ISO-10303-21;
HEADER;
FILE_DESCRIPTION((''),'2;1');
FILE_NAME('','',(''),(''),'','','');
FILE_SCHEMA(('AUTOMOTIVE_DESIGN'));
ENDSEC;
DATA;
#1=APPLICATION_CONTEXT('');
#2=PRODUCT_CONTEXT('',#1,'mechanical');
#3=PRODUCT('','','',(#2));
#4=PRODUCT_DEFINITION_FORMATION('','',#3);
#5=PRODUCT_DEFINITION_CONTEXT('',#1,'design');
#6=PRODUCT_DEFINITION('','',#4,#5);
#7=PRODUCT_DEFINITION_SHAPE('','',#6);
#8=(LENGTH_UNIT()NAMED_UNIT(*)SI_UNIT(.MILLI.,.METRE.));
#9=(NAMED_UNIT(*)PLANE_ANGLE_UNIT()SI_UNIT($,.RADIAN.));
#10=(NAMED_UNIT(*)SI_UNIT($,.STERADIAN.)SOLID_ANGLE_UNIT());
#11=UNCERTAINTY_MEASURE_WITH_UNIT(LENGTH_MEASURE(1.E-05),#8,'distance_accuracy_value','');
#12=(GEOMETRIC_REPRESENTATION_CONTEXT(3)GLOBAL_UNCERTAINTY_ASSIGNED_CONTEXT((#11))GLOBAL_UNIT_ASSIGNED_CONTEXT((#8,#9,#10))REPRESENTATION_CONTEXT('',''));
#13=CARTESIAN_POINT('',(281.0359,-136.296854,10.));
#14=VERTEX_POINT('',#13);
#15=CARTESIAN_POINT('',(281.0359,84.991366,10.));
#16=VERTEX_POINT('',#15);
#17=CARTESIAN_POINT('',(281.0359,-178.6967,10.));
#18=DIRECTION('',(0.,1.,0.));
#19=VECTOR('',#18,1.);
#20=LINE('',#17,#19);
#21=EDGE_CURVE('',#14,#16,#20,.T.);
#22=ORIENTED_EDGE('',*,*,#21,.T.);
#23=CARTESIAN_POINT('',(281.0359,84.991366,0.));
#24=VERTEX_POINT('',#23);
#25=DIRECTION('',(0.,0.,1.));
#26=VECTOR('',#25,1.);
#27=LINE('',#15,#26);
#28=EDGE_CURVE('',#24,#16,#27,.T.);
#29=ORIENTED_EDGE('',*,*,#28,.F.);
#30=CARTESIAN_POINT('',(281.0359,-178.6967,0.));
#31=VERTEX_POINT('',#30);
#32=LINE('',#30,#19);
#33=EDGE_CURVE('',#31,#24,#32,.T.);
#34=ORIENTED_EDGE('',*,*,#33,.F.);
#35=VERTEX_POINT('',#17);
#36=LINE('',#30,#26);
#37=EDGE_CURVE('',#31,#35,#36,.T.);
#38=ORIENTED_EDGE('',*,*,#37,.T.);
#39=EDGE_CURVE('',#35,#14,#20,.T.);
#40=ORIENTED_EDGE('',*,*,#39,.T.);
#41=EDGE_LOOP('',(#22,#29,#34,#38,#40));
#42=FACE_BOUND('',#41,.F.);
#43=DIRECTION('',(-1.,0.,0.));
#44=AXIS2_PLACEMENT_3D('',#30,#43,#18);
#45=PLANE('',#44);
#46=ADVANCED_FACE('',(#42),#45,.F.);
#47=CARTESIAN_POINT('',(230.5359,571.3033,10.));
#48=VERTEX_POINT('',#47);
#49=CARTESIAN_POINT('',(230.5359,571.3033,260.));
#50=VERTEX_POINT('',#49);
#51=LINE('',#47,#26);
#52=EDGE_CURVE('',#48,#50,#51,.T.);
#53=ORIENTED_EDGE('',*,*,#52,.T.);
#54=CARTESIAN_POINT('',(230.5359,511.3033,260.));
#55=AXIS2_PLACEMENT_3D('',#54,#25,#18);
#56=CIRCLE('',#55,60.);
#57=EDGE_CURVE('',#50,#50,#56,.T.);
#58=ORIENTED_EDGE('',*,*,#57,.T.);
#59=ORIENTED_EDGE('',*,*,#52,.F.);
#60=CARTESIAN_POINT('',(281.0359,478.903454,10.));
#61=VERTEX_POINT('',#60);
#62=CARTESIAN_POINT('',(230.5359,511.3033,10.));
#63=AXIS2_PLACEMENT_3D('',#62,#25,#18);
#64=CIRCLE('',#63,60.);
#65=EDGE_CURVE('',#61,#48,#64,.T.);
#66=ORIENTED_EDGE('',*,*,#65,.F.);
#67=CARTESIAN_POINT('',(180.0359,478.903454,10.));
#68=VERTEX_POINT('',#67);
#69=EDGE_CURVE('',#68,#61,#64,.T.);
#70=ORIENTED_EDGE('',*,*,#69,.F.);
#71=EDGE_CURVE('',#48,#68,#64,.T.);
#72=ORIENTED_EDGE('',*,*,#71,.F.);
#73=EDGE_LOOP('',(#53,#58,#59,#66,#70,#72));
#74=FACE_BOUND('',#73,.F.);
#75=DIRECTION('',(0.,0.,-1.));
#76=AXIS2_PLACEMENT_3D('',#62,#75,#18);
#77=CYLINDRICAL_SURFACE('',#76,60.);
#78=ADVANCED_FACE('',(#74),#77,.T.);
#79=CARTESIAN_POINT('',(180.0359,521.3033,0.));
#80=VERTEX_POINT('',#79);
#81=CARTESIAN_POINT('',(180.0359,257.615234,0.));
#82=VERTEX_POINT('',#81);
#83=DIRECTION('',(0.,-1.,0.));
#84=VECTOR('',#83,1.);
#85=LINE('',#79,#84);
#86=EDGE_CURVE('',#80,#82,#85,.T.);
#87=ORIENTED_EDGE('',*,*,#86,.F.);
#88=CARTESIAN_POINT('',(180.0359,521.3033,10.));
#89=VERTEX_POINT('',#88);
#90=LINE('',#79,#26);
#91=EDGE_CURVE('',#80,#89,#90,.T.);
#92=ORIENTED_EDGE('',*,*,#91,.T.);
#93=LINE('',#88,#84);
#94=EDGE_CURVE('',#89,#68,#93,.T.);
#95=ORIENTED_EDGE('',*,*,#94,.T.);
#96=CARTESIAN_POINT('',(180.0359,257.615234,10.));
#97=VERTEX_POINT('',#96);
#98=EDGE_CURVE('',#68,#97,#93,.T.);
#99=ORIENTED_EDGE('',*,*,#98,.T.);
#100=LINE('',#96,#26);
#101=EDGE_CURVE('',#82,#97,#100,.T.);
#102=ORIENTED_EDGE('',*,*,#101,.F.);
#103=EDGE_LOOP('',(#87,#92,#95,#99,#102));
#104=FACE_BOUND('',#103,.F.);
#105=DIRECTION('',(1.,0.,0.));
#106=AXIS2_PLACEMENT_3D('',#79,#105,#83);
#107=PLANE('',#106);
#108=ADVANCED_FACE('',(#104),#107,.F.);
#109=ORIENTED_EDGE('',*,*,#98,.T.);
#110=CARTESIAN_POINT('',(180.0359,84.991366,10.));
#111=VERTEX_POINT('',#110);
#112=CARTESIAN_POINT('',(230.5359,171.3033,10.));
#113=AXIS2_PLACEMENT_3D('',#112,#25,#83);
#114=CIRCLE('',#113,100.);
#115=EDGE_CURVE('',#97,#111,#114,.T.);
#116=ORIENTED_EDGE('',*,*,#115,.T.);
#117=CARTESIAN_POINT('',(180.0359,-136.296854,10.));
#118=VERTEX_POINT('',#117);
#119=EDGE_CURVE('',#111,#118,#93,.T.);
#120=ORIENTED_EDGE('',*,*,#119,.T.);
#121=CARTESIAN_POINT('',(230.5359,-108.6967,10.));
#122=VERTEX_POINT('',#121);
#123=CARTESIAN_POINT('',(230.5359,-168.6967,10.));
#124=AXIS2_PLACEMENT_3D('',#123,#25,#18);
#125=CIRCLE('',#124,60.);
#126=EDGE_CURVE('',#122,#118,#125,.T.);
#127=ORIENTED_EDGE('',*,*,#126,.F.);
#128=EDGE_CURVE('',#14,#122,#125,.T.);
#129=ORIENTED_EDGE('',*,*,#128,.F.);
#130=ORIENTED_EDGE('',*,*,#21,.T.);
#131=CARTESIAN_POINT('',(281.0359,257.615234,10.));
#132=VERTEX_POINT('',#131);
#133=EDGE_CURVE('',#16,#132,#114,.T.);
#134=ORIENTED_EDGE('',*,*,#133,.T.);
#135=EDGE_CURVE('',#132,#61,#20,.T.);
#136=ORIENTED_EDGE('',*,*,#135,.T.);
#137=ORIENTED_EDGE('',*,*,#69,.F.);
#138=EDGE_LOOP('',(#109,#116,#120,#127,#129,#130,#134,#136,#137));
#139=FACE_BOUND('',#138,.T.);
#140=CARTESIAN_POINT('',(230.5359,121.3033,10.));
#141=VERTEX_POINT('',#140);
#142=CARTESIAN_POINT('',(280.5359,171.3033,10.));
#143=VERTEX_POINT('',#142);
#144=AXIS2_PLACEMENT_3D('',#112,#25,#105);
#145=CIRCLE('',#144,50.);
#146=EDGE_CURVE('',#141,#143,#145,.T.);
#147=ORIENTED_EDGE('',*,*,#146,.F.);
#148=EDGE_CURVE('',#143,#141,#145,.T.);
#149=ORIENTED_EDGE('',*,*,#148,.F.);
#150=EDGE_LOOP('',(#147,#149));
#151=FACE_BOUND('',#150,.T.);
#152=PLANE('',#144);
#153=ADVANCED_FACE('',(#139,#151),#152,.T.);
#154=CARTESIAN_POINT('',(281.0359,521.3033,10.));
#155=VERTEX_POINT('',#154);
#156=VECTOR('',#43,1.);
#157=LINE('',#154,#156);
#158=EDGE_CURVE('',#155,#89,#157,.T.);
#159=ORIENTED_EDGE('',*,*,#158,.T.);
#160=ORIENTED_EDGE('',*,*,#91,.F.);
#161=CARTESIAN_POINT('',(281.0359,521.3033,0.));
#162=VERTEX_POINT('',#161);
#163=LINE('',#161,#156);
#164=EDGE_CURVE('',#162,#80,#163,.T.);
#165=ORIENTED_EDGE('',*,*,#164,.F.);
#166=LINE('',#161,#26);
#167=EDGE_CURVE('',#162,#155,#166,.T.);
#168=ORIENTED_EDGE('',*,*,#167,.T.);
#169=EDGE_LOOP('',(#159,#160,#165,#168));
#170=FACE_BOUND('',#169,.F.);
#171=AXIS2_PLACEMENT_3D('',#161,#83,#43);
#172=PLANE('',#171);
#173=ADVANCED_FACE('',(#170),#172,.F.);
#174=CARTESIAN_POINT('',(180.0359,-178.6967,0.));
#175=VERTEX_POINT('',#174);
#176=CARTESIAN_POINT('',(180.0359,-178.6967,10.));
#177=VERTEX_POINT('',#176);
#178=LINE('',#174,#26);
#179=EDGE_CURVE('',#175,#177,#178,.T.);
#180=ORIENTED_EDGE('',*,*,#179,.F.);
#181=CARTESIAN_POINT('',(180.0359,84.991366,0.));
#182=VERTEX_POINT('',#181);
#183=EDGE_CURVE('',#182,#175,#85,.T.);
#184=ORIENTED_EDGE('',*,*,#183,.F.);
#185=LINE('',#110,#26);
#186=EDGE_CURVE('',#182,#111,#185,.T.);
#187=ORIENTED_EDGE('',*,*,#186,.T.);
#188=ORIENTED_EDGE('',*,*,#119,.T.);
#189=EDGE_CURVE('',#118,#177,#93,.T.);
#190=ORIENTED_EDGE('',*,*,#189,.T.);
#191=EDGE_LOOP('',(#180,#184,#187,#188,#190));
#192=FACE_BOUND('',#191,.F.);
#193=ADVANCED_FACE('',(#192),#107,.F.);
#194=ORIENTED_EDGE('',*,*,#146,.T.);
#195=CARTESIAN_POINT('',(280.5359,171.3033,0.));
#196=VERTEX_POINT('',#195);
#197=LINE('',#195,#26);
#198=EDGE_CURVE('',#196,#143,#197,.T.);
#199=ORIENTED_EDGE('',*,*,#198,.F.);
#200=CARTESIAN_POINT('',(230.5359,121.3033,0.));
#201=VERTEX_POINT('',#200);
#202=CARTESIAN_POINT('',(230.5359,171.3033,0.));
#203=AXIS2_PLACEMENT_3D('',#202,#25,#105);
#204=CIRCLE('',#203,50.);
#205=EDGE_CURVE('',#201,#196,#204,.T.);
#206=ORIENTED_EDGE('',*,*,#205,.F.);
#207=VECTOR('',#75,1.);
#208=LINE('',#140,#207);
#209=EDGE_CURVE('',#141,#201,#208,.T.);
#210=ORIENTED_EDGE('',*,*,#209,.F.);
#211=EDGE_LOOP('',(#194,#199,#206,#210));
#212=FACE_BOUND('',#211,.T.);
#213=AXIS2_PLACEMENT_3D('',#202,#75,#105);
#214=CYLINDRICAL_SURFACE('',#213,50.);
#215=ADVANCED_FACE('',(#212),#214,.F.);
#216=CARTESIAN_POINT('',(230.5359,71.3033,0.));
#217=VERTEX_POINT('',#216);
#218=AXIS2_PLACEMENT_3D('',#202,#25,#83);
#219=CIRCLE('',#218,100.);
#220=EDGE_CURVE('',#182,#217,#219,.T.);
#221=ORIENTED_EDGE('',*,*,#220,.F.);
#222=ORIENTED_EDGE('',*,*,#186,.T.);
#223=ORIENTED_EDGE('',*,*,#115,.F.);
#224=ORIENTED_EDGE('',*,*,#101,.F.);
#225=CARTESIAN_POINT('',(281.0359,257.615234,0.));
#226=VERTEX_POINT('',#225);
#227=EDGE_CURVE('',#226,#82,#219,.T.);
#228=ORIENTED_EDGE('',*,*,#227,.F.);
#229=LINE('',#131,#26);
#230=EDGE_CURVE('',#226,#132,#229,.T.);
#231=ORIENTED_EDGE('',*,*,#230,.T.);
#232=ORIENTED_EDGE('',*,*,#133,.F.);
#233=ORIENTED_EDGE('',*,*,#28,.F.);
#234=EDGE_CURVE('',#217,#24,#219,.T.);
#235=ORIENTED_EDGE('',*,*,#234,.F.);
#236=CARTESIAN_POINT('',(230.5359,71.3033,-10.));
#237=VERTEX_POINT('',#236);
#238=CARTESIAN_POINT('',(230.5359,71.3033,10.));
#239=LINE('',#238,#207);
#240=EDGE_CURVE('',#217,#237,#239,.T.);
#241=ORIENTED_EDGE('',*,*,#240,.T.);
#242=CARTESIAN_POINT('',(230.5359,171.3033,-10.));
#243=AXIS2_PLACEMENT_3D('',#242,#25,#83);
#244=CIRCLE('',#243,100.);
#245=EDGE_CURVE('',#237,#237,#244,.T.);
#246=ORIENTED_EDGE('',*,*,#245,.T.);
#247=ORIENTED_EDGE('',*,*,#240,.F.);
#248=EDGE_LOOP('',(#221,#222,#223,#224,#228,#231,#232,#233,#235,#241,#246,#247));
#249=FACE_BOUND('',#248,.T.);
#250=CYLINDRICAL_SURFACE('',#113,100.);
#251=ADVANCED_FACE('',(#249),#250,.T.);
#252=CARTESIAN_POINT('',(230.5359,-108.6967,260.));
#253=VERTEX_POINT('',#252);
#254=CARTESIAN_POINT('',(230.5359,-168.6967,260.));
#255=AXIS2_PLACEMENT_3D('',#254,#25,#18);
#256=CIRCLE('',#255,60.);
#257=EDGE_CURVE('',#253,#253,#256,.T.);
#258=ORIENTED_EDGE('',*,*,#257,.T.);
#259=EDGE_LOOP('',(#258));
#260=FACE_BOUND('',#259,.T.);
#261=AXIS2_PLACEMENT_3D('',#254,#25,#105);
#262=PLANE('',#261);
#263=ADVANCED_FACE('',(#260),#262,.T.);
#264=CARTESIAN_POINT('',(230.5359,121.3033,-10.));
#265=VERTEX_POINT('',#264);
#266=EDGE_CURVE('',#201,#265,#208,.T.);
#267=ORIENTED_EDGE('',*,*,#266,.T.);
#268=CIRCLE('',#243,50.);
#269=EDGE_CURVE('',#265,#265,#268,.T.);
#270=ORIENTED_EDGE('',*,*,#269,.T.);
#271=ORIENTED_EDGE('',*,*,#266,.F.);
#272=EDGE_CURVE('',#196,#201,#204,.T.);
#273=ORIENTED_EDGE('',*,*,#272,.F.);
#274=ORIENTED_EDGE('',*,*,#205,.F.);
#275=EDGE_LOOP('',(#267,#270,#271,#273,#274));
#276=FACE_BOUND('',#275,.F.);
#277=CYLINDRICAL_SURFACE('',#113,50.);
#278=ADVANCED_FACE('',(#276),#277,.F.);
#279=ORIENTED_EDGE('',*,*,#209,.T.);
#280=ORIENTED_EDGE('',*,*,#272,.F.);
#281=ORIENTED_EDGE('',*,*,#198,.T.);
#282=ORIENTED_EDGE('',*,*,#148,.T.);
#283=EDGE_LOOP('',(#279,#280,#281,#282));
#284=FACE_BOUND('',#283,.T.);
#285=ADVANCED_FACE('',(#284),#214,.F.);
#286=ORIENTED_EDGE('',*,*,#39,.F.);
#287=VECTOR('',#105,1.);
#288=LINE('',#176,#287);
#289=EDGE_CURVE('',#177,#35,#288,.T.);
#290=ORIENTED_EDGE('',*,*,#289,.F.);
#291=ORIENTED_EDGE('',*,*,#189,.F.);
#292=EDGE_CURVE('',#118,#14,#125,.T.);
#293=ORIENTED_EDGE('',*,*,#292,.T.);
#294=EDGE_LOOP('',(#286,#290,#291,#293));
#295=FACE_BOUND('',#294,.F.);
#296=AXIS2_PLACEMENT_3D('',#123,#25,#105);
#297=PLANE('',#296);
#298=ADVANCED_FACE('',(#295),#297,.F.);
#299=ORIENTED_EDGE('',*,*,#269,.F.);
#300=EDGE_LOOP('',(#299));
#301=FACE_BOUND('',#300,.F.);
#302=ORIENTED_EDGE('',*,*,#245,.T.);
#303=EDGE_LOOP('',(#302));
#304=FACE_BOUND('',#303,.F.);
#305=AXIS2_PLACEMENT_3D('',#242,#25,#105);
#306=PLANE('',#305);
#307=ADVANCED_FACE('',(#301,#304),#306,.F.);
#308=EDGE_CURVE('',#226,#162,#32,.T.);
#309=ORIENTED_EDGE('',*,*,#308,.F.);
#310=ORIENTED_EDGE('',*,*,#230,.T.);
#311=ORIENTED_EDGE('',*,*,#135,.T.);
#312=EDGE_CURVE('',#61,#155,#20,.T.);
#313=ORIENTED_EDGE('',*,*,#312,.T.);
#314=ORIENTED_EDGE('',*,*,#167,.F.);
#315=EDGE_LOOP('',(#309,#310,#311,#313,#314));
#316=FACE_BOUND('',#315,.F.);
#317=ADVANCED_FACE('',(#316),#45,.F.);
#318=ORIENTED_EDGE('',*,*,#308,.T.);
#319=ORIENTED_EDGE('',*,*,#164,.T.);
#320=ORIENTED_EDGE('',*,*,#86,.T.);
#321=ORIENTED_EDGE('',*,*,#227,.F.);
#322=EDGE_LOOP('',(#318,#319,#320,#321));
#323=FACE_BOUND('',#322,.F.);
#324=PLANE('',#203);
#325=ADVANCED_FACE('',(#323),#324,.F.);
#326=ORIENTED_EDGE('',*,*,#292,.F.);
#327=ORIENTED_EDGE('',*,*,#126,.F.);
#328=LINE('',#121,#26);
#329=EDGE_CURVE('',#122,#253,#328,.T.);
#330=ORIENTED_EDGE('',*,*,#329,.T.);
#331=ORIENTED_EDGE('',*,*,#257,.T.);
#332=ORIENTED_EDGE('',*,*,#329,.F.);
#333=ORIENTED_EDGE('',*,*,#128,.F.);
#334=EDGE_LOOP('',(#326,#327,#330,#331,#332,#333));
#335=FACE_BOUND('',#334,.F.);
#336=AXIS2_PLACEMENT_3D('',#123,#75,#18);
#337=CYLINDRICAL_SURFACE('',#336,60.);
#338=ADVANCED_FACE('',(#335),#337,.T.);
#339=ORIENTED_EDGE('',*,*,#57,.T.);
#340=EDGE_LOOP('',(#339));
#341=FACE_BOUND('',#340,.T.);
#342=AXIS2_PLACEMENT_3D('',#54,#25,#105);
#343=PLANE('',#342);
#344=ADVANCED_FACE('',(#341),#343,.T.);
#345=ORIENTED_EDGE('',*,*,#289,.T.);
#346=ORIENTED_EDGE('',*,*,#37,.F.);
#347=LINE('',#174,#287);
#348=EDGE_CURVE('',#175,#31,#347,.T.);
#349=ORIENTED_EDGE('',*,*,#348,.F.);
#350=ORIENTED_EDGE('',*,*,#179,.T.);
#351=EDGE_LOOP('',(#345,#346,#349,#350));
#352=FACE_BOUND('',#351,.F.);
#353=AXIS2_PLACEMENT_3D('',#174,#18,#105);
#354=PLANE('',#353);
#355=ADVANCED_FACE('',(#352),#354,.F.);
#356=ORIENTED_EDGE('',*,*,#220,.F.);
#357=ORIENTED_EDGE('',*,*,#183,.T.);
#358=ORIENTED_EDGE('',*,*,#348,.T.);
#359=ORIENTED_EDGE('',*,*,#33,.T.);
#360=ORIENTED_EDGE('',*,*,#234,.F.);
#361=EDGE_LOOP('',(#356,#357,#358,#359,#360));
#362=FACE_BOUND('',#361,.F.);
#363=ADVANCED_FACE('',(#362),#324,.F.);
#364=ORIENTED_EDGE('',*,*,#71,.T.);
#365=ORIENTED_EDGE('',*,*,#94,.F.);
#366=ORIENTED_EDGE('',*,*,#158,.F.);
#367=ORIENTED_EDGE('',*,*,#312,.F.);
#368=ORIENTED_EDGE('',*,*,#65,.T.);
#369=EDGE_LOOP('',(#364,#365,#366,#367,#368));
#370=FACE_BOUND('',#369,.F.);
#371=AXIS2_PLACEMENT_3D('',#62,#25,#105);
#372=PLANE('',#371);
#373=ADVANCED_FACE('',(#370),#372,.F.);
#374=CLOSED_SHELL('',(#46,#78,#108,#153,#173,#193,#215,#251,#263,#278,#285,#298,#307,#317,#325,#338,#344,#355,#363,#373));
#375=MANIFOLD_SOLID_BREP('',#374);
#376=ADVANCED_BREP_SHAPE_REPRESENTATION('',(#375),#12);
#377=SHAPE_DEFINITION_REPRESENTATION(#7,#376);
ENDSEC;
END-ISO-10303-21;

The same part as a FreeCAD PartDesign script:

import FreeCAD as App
import Part
import Sketcher
Q = App.Units.Quantity

doc = App.newDocument("Part")
body = doc.addObject("PartDesign::Body", "Body")

# Sketch on XY plane
sketch1 = body.newObject("Sketcher::SketchObject", "Sketch")
sketch1.AttachmentSupport = (doc.getObject("XY_Plane"), [""])
sketch1.MapMode = "FlatFace"
sketch1.addGeometry(Part.LineSegment(App.Vector(180, 521, 0), App.Vector(180, -179, 0)), False)
sketch1.addGeometry(Part.LineSegment(App.Vector(180, -179, 0), App.Vector(281, -179, 0)), False)
sketch1.addGeometry(Part.LineSegment(App.Vector(281, -179, 0), App.Vector(281, 521, 0)), False)
sketch1.addGeometry(Part.LineSegment(App.Vector(281, 521, 0), App.Vector(180, 521, 0)), False)
sketch1.addGeometry(Part.Circle(App.Vector(231, 171, 0), App.Vector(0, 0, 1), 50), False)
sketch1.addConstraint(Sketcher.Constraint("Coincident", 0, 2, 1, 1))
sketch1.addConstraint(Sketcher.Constraint("Coincident", 1, 2, 2, 1))
sketch1.addConstraint(Sketcher.Constraint("Coincident", 2, 2, 3, 1))
sketch1.addConstraint(Sketcher.Constraint("Coincident", 3, 2, 0, 1))
sketch1.addConstraint(Sketcher.Constraint("Vertical", 0))
sketch1.addConstraint(Sketcher.Constraint("Horizontal", 1))
sketch1.addConstraint(Sketcher.Constraint("Vertical", 2))
sketch1.addConstraint(Sketcher.Constraint("Horizontal", 3))
sketch1.addConstraint(Sketcher.Constraint("Diameter", 4, Q("100 mm")))
sketch1.addConstraint(Sketcher.Constraint("DistanceX", 1, 1, 1, 2, Q("101 mm")))
sketch1.addConstraint(Sketcher.Constraint("DistanceY", 0, 2, 0, 1, Q("700 mm")))
sketch1.addConstraint(Sketcher.Constraint("DistanceX", -1, 1, 0, 2, Q("180.036 mm")))
sketch1.addConstraint(Sketcher.Constraint("DistanceY", 0, 2, 4, 3, Q("350 mm")))
sketch1.addConstraint(Sketcher.Constraint("DistanceX", 0, 2, 4, 3, Q("50.5 mm")))
sketch1.addConstraint(Sketcher.Constraint("DistanceY", -1, 1, 4, 3, Q("171.3033 mm")))
pad1 = body.newObject("PartDesign::Pad", "Pad")
pad1.Profile = sketch1
pad1.Length = 10

# Sketch on XY plane
sketch2 = body.newObject("Sketcher::SketchObject", "Sketch001")
sketch2.AttachmentSupport = (doc.getObject("XY_Plane"), [""])
sketch2.MapMode = "FlatFace"
sketch2.AttachmentOffset = App.Placement(App.Vector(0, 0, 10), App.Rotation())
sketch2.addGeometry(Part.Circle(App.Vector(231, 511, 0), App.Vector(0, 0, 1), 60), False)
sketch2.addGeometry(Part.Circle(App.Vector(231, -169, 0), App.Vector(0, 0, 1), 60), False)
sketch2.addConstraint(Sketcher.Constraint("Equal", 0, 1))
sketch2.addConstraint(Sketcher.Constraint("Vertical", 0, 3, 1, 3))
sketch2.addConstraint(Sketcher.Constraint("Diameter", 0, Q("120 mm")))
sketch2.addConstraint(Sketcher.Constraint("DistanceY", 1, 3, 0, 3, Q("680 mm")))
sketch2.addConstraint(Sketcher.Constraint("DistanceX", -1, 1, 0, 3, Q("230.536 mm")))
sketch2.addConstraint(Sketcher.Constraint("DistanceY", -1, 1, 0, 3, Q("511.3033 mm")))
pad2 = body.newObject("PartDesign::Pad", "Pad001")
pad2.Profile = sketch2
pad2.Length = 250

# Sketch on XY plane
sketch3 = body.newObject("Sketcher::SketchObject", "Sketch002")
sketch3.AttachmentSupport = (doc.getObject("XY_Plane"), [""])
sketch3.MapMode = "FlatFace"
sketch3.AttachmentOffset = App.Placement(App.Vector(0, 0, 10), App.Rotation())
sketch3.addGeometry(Part.Circle(App.Vector(231, 171, 0), App.Vector(0, 0, 1), 100), False)
sketch3.addGeometry(Part.Circle(App.Vector(231, 171, 0), App.Vector(0, 0, 1), 50), False)
sketch3.addConstraint(Sketcher.Constraint("Coincident", 1, 3, 0, 3))
sketch3.addConstraint(Sketcher.Constraint("Diameter", 0, Q("200 mm")))
sketch3.addConstraint(Sketcher.Constraint("Diameter", 1, Q("100 mm")))
sketch3.addConstraint(Sketcher.Constraint("DistanceX", -1, 1, 0, 3, Q("230.536 mm")))
sketch3.addConstraint(Sketcher.Constraint("DistanceY", -1, 1, 0, 3, Q("171.3033 mm")))
pad3 = body.newObject("PartDesign::Pad", "Pad002")
pad3.Profile = sketch3
pad3.Length = 20
pad3.Reversed = True

doc.recompute()
